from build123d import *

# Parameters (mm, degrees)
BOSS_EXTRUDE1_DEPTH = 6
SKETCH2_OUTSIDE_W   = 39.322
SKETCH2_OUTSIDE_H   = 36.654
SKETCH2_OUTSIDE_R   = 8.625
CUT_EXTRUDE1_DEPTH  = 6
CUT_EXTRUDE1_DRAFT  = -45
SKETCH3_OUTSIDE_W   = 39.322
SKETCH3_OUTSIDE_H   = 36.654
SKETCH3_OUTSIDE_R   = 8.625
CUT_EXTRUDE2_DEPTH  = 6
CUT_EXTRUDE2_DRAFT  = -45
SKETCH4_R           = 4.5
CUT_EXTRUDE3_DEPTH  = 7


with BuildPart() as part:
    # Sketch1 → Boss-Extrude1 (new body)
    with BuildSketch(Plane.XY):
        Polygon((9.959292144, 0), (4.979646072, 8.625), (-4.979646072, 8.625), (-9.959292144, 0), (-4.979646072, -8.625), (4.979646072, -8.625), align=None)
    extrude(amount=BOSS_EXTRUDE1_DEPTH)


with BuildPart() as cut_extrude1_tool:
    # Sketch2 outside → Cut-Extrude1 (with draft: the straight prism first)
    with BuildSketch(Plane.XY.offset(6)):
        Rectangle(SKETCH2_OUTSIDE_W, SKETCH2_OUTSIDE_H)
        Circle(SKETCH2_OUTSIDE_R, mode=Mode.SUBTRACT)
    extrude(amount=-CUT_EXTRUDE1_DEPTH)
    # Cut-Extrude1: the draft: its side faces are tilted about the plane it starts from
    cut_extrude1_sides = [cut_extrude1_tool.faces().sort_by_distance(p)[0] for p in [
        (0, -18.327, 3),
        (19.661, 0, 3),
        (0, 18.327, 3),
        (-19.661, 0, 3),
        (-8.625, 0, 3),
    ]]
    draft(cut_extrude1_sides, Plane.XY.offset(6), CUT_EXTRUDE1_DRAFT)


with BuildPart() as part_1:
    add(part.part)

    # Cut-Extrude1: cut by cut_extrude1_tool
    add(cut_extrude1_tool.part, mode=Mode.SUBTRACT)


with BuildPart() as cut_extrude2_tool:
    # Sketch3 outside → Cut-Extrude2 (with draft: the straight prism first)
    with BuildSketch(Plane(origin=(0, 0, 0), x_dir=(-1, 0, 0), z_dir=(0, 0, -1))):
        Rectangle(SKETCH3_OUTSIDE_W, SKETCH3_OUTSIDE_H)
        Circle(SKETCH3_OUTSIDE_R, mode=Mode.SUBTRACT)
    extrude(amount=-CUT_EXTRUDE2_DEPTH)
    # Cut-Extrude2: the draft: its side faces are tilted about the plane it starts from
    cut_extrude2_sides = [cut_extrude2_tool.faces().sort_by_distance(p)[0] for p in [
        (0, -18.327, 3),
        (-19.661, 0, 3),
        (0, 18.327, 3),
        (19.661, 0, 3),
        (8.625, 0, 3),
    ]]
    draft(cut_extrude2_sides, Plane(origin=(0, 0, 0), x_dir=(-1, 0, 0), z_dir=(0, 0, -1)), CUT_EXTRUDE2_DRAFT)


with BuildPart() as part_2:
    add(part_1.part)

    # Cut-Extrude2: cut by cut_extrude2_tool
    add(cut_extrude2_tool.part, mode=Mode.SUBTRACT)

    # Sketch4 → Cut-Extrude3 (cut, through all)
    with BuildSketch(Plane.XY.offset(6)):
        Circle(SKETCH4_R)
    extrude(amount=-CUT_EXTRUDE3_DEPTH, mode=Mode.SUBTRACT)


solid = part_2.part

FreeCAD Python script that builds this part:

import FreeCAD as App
import Part
import Sketcher

V = App.Vector
Q = App.Units.Quantity


def faces_at(feature, points):
    """Names of the faces that lie closest to the given points."""
    faces = feature.Shape.Faces
    near = lambda p: min(range(len(faces)), key=lambda i: faces[i].distToShape(Part.Vertex(*p))[0])
    return sorted({f"Face{near(p) + 1}" for p in points})


def add_polygon(sketch, points):
    """Adds a closed chain of lines whose ends are joined by coincident constraints."""
    first, n = sketch.GeometryCount, len(points)
    for a, b in zip(points, points[1:] + points[:1]):
        sketch.addGeometry(Part.LineSegment(App.Vector(*a, 0), App.Vector(*b, 0)), False)
    for i in range(n):
        sketch.addConstraint(Sketcher.Constraint("Coincident", first + i, 2, first + (i + 1) % n, 1))

doc = App.newDocument("Part")
body = doc.addObject("PartDesign::Body", "Body")

# Sketch on XY plane
sketch1 = body.newObject("Sketcher::SketchObject", "Sketch")
sketch1.AttachmentSupport = (doc.getObject("XY_Plane"), [""])
sketch1.MapMode = "FlatFace"
add_polygon(sketch1, [(9.959292, 0), (4.979646, 8.625), (-4.979646, 8.625), (-9.959292, 0), (-4.979646, -8.625), (4.979646, -8.625)])  # lines 0-5
sketch1.addConstraint(Sketcher.Constraint("Horizontal", 1))
sketch1.addConstraint(Sketcher.Constraint("Horizontal", 4))
sketch1.addConstraint(Sketcher.Constraint("Symmetric", 0, 2, 3, 2, -1, 1))
sketch1.addConstraint(Sketcher.Constraint("Symmetric", 2, 2, 5, 2, -1, 1))
sketch1.addConstraint(Sketcher.Constraint("PointOnObject", 2, 2, -1))
sketch1.addConstraint(Sketcher.Constraint("Parallel", 2, 5))
sketch1.addConstraint(Sketcher.Constraint("Vertical", 1, 2, 3, 2))
sketch1.addConstraint(Sketcher.Constraint("Angle", 0, Q("120 deg")))
sketch1.addConstraint(Sketcher.Constraint("DistanceY", 3, 2, 1, 2, Q("17.25 mm")))
sketch1.addConstraint(Sketcher.Constraint("DistanceX", 1, 2, 1, 1, Q("9.959292 mm")))
pad1 = body.newObject("PartDesign::Pad", "Pad")
pad1.Profile = sketch1
pad1.Length = 6
body2 = doc.addObject("PartDesign::Body", "Body001")

# Sketch on XY plane
sketch2 = body2.newObject("Sketcher::SketchObject", "Sketch001")
sketch2.AttachmentSupport = (doc.getObject("XY_Plane001"), [""])
sketch2.MapMode = "FlatFace"
sketch2.AttachmentOffset = App.Placement(V(0, 0, 6), App.Rotation())
add_polygon(sketch2, [(-19.661, 18.327), (-19.661, -18.327), (19.661, -18.327), (19.661, 18.327)])  # lines 0-3
sketch2.addGeometry(Part.Circle(V(0, 0, 0), V(0, 0, 1), 8.625), False)  # 4
sketch2.addConstraint(Sketcher.Constraint("Vertical", 0))
sketch2.addConstraint(Sketcher.Constraint("Horizontal", 1))
sketch2.addConstraint(Sketcher.Constraint("Vertical", 2))
sketch2.addConstraint(Sketcher.Constraint("Horizontal", 3))
sketch2.addConstraint(Sketcher.Constraint("Coincident", 4, 3, -1, 1))
sketch2.addConstraint(Sketcher.Constraint("Symmetric", 0, 2, 2, 2, -1, 1))
sketch2.addConstraint(Sketcher.Constraint("Diameter", 4, Q("17.25 mm")))
sketch2.addConstraint(Sketcher.Constraint("DistanceX", 1, 1, 1, 2, Q("39.322 mm")))
sketch2.addConstraint(Sketcher.Constraint("DistanceY", 0, 2, 0, 1, Q("36.654 mm")))
pad2 = body2.newObject("PartDesign::Pad", "Pad001")
pad2.Profile = sketch2
pad2.Length = 6
pad2.Reversed = True
doc.recompute()

datumplane = body2.newObject("PartDesign::Plane", "DatumPlane")
datumplane.AttachmentSupport = (doc.getObject("XY_Plane001"), [""])
datumplane.MapMode = "FlatFace"
datumplane.AttachmentOffset = App.Placement(V(0, 0, 6), App.Rotation())
draft = body2.newObject("PartDesign::Draft", "Draft")
draft.Base = (pad2, faces_at(pad2, [
    (0, -18.327, 3),
    (19.661, 0, 3),
    (0, 18.327, 3),
    (-19.661, 0, 3),
    (-8.625, 0, 3),
]))
draft.NeutralPlane = (datumplane, [""])
draft.Angle = 45
draft.Reversed = True
doc.recompute()

boolean = body.newObject("PartDesign::Boolean", "Boolean")
boolean.Type = "Cut"
boolean.addObjects([body2])
body3 = doc.addObject("PartDesign::Body", "Body002")

# Sketch on XY plane
sketch3 = body3.newObject("Sketcher::SketchObject", "Sketch002")
sketch3.AttachmentSupport = (doc.getObject("XY_Plane002"), [""])
sketch3.MapMode = "FlatFace"
add_polygon(sketch3, [(19.661, 18.327), (19.661, -18.327), (-19.661, -18.327), (-19.661, 18.327)])  # lines 0-3
sketch3.addGeometry(Part.Circle(V(0, 0, 0), V(0, 0, 1), 8.625), False)  # 4
sketch3.addConstraint(Sketcher.Constraint("Vertical", 0))
sketch3.addConstraint(Sketcher.Constraint("Horizontal", 1))
sketch3.addConstraint(Sketcher.Constraint("Vertical", 2))
sketch3.addConstraint(Sketcher.Constraint("Horizontal", 3))
sketch3.addConstraint(Sketcher.Constraint("Coincident", 4, 3, -1, 1))
sketch3.addConstraint(Sketcher.Constraint("Symmetric", 0, 2, 2, 2, -1, 1))
sketch3.addConstraint(Sketcher.Constraint("Diameter", 4, Q("17.25 mm")))
sketch3.addConstraint(Sketcher.Constraint("DistanceX", 1, 2, 1, 1, Q("39.322 mm")))
sketch3.addConstraint(Sketcher.Constraint("DistanceY", 0, 2, 0, 1, Q("36.654 mm")))
pad3 = body3.newObject("PartDesign::Pad", "Pad002")
pad3.Profile = sketch3
pad3.Length = 6
doc.recompute()

draft2 = body3.newObject("PartDesign::Draft", "Draft001")
draft2.Base = (pad3, faces_at(pad3, [
    (0, -18.327, 3),
    (-19.661, 0, 3),
    (0, 18.327, 3),
    (19.661, 0, 3),
    (8.625, 0, 3),
]))
draft2.NeutralPlane = (doc.getObject("XY_Plane002"), [""])
draft2.Angle = 45
draft2.Reversed = False
doc.recompute()

boolean2 = body.newObject("PartDesign::Boolean", "Boolean001")
boolean2.Type = "Cut"
boolean2.addObjects([body3])

# Sketch on XY plane
sketch4 = body.newObject("Sketcher::SketchObject", "Sketch003")
sketch4.AttachmentSupport = (doc.getObject("XY_Plane"), [""])
sketch4.MapMode = "FlatFace"
sketch4.AttachmentOffset = App.Placement(V(0, 0, 6), App.Rotation())
sketch4.addGeometry(Part.Circle(V(0, 0, 0), V(0, 0, 1), 4.5), False)
sketch4.addConstraint(Sketcher.Constraint("Coincident", 0, 3, -1, 1))
sketch4.addConstraint(Sketcher.Constraint("Diameter", 0, Q("9 mm")))
pocket1 = body.newObject("PartDesign::Pocket", "Pocket")
pocket1.Profile = sketch4
pocket1.Type = "ThroughAll"

doc.recompute()
